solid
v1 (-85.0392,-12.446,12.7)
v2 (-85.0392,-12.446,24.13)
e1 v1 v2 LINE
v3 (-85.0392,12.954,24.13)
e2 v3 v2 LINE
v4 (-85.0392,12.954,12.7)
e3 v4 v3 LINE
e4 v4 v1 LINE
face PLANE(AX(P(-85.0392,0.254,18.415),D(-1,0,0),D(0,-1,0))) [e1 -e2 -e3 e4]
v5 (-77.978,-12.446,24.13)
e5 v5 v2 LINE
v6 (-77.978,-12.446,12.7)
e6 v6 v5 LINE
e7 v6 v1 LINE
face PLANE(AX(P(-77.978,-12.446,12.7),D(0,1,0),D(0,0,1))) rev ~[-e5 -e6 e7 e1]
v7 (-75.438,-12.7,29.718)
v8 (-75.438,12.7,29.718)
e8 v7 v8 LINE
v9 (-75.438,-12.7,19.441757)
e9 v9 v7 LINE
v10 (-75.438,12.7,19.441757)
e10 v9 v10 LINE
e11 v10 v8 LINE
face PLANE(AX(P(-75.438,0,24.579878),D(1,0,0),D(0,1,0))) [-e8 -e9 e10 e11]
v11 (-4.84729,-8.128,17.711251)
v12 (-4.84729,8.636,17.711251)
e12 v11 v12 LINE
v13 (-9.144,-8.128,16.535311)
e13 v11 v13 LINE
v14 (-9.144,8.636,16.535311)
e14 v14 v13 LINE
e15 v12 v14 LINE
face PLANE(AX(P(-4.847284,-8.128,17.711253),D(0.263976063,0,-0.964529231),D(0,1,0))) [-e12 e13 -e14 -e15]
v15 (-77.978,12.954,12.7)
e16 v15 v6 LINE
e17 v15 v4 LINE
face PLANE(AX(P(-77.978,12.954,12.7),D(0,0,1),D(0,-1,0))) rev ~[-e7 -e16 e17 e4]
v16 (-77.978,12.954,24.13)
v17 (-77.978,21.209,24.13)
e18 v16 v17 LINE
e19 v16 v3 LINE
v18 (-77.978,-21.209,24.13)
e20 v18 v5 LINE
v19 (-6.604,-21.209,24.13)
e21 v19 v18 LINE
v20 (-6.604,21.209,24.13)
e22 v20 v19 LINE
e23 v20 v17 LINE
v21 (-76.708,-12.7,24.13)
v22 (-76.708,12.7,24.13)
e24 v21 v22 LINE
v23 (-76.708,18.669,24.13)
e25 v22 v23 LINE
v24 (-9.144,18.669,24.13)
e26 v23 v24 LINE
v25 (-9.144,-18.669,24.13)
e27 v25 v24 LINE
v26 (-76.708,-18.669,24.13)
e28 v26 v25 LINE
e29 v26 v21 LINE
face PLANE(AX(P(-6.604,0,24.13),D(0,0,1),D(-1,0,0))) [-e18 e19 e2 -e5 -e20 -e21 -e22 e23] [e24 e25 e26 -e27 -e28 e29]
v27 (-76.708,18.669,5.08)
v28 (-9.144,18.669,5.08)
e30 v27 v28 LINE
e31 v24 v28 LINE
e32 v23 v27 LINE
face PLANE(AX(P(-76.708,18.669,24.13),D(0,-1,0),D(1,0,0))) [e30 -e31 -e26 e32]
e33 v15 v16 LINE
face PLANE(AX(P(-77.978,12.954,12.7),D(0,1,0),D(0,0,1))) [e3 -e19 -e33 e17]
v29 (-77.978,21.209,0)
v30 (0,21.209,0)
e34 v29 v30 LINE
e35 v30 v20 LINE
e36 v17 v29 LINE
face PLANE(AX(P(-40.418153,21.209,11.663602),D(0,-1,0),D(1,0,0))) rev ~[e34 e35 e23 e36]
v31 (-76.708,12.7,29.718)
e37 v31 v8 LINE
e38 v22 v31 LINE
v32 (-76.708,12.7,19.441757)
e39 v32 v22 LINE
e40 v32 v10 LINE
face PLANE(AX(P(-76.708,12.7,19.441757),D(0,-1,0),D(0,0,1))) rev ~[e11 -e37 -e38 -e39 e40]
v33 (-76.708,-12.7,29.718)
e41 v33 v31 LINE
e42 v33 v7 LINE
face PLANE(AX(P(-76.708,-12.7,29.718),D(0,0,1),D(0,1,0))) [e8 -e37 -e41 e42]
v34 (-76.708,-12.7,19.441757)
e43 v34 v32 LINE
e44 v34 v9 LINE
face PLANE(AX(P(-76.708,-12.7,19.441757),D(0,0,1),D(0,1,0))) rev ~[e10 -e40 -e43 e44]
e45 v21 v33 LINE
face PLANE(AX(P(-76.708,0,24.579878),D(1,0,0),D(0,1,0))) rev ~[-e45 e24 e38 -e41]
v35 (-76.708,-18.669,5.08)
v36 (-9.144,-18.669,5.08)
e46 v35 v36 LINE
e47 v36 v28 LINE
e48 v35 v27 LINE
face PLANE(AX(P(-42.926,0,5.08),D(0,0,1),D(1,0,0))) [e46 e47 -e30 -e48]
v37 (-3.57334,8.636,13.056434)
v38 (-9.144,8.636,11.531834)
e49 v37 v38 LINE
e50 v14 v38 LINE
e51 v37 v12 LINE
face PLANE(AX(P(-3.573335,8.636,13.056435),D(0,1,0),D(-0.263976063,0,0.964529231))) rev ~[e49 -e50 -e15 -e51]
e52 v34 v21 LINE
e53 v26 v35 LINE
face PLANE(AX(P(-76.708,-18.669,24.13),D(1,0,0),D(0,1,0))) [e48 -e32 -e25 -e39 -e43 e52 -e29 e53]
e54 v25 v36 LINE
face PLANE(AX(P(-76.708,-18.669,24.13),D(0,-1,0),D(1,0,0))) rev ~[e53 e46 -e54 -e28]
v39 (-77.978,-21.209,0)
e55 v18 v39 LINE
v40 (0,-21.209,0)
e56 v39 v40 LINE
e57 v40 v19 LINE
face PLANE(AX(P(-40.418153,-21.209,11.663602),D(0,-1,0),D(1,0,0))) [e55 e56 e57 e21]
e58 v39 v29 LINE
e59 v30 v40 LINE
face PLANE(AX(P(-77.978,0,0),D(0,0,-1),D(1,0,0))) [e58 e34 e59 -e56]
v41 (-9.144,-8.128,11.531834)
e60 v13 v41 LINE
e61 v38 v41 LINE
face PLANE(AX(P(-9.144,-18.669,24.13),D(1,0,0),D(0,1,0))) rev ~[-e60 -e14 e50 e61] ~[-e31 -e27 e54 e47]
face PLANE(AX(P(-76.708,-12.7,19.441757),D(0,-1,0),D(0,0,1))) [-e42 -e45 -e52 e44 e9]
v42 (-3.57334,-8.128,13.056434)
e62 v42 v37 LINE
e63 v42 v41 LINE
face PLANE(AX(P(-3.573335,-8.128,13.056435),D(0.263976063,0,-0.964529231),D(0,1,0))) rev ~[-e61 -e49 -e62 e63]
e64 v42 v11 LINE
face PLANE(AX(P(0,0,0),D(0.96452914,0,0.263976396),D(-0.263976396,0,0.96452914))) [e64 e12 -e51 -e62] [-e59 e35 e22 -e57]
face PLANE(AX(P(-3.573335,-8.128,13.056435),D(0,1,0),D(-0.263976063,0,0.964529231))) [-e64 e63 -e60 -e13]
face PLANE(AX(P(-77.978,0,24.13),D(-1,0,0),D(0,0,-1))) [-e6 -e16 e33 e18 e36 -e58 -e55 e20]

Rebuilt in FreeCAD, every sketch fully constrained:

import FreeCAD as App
import Part
import Sketcher

V = App.Vector
Q = App.Units.Quantity

doc = App.newDocument("Part")
body = doc.addObject("PartDesign::Body", "Body")

sketch1 = doc.addObject("Sketcher::SketchObject", "Sketch")
body.addObject(sketch1)
sketch1.AttachmentSupport = (doc.XZ_Plane, [""])
sketch1.MapMode = "FlatFace"
sketch1.addGeometry(Part.LineSegment(V(-77.978, 0, 0), V(0, 0, 0)), False)
sketch1.addGeometry(Part.LineSegment(V(0, 0, 0), V(-6.604, 24.13, 0)), False)
sketch1.addGeometry(Part.LineSegment(V(-6.604, 24.13, 0), V(-77.978, 24.13, 0)), False)
sketch1.addGeometry(Part.LineSegment(V(-77.978, 24.13, 0), V(-77.978, 0, 0)), False)
sketch1.addConstraint(Sketcher.Constraint("Coincident", 0, 2, 1, 1))
sketch1.addConstraint(Sketcher.Constraint("Coincident", 1, 2, 2, 1))
sketch1.addConstraint(Sketcher.Constraint("Coincident", 2, 2, 3, 1))
sketch1.addConstraint(Sketcher.Constraint("Coincident", 3, 2, 0, 1))
sketch1.addConstraint(Sketcher.Constraint("Horizontal", 0))
sketch1.addConstraint(Sketcher.Constraint("Horizontal", 2))
sketch1.addConstraint(Sketcher.Constraint("Vertical", 3))
sketch1.addConstraint(Sketcher.Constraint("Coincident", 0, 2, -1, 1))
sketch1.addConstraint(Sketcher.Constraint("DistanceX", 0, 1, 0, 2, Q("3.07 in")))
sketch1.addConstraint(Sketcher.Constraint("DistanceX", 2, 2, 2, 1, Q("2.81 in")))
sketch1.addConstraint(Sketcher.Constraint("DistanceY", 3, 2, 3, 1, Q("0.95 in")))
pad1 = doc.addObject("PartDesign::Pad", "Pad")
body.addObject(pad1)
pad1.Profile = sketch1
pad1.Length = Q("1.67 in")
pad1.Midplane = True

sketch2 = doc.addObject("Sketcher::SketchObject", "Sketch001")
body.addObject(sketch2)
sketch2.AttachmentSupport = (doc.YZ_Plane, [""])
sketch2.MapMode = "FlatFace"
sketch2.AttachmentOffset = App.Placement(V(0, 0, -3.07 * 25.4), App.Rotation())
sketch2.addGeometry(Part.LineSegment(V(12.954, 24.13, 0), V(12.954, 12.7, 0)), False)
sketch2.addGeometry(Part.LineSegment(V(12.954, 12.7, 0), V(-12.446, 12.7, 0)), False)
sketch2.addGeometry(Part.LineSegment(V(-12.446, 12.7, 0), V(-12.446, 24.13, 0)), False)
sketch2.addGeometry(Part.LineSegment(V(-12.446, 24.13, 0), V(12.954, 24.13, 0)), False)
sketch2.addConstraint(Sketcher.Constraint("Coincident", 0, 2, 1, 1))
sketch2.addConstraint(Sketcher.Constraint("Coincident", 1, 2, 2, 1))
sketch2.addConstraint(Sketcher.Constraint("Coincident", 2, 2, 3, 1))
sketch2.addConstraint(Sketcher.Constraint("Coincident", 3, 2, 0, 1))
sketch2.addConstraint(Sketcher.Constraint("Vertical", 0))
sketch2.addConstraint(Sketcher.Constraint("Horizontal", 1))
sketch2.addConstraint(Sketcher.Constraint("Vertical", 2))
sketch2.addConstraint(Sketcher.Constraint("Horizontal", 3))
sketch2.addConstraint(Sketcher.Constraint("DistanceX", 1, 2, 1, 1, Q("1 in")))
sketch2.addConstraint(Sketcher.Constraint("DistanceY", 0, 2, 0, 1, Q("0.45 in")))
sketch2.addConstraint(Sketcher.Constraint("DistanceY", -1, 1, 0, 2, Q("0.5 in")))
sketch2.addConstraint(Sketcher.Constraint("DistanceX", -1, 1, 0, 2, Q("0.51 in")))
pad2 = doc.addObject("PartDesign::Pad", "Pad001")
body.addObject(pad2)
pad2.Profile = sketch2
pad2.Length = Q("0.278 in")
pad2.Reversed = True

sketch3 = doc.addObject("Sketcher::SketchObject", "Sketch002")
body.addObject(sketch3)
sketch3.Placement = App.Placement(V(0, 0, 0), App.Rotation(V(0, 1, 0), V(-0.263976063, 0, 0.964529231), V(0.964529231, 0, 0.263976063), "ZXY"))
sketch3.addGeometry(Part.LineSegment(V(-8.128, 18.362588, 0), V(-8.128, 13.536588, 0)), False)
sketch3.addGeometry(Part.LineSegment(V(-8.128, 13.536588, 0), V(8.636, 13.536588, 0)), False)
sketch3.addGeometry(Part.LineSegment(V(8.636, 13.536588, 0), V(8.636, 18.362588, 0)), False)
sketch3.addGeometry(Part.LineSegment(V(8.636, 18.362588, 0), V(-8.128, 18.362588, 0)), False)
sketch3.addConstraint(Sketcher.Constraint("Coincident", 0, 2, 1, 1))
sketch3.addConstraint(Sketcher.Constraint("Coincident", 1, 2, 2, 1))
sketch3.addConstraint(Sketcher.Constraint("Coincident", 2, 2, 3, 1))
sketch3.addConstraint(Sketcher.Constraint("Coincident", 3, 2, 0, 1))
sketch3.addConstraint(Sketcher.Constraint("Vertical", 0))
sketch3.addConstraint(Sketcher.Constraint("Horizontal", 1))
sketch3.addConstraint(Sketcher.Constraint("Vertical", 2))
sketch3.addConstraint(Sketcher.Constraint("Horizontal", 3))
sketch3.addConstraint(Sketcher.Constraint("DistanceX", 1, 1, 1, 2, Q("0.66 in")))
sketch3.addConstraint(Sketcher.Constraint("DistanceY", 0, 2, 0, 1, Q("0.19 in")))
sketch3.addConstraint(Sketcher.Constraint("DistanceX", 0, 2, -1, 1, Q("0.32 in")))
sketch3.addConstraint(Sketcher.Constraint("DistanceY", -1, 1, 0, 2, Q("13.536588 mm")))
pocket1 = doc.addObject("PartDesign::Pocket", "Pocket")
body.addObject(pocket1)
pocket1.Profile = sketch3
pocket1.Length = Q("0.29 in")

sketch4 = doc.addObject("Sketcher::SketchObject", "Sketch003")
body.addObject(sketch4)
sketch4.AttachmentSupport = (doc.XY_Plane, [""])
sketch4.MapMode = "FlatFace"
sketch4.AttachmentOffset = App.Placement(V(0, 0, 0.95 * 25.4), App.Rotation())
sketch4.addGeometry(Part.LineSegment(V(-76.708, 18.669, 0), V(-76.708, -18.669, 0)), False)
sketch4.addGeometry(Part.LineSegment(V(-76.708, -18.669, 0), V(-9.144, -18.669, 0)), False)
sketch4.addGeometry(Part.LineSegment(V(-9.144, -18.669, 0), V(-9.144, 18.669, 0)), False)
sketch4.addGeometry(Part.LineSegment(V(-9.144, 18.669, 0), V(-76.708, 18.669, 0)), False)
sketch4.addConstraint(Sketcher.Constraint("Coincident", 0, 2, 1, 1))
sketch4.addConstraint(Sketcher.Constraint("Coincident", 1, 2, 2, 1))
sketch4.addConstraint(Sketcher.Constraint("Coincident", 2, 2, 3, 1))
sketch4.addConstraint(Sketcher.Constraint("Coincident", 3, 2, 0, 1))
sketch4.addConstraint(Sketcher.Constraint("Vertical", 0))
sketch4.addConstraint(Sketcher.Constraint("Horizontal", 1))
sketch4.addConstraint(Sketcher.Constraint("Vertical", 2))
sketch4.addConstraint(Sketcher.Constraint("Horizontal", 3))
sketch4.addConstraint(Sketcher.Constraint("DistanceX", 1, 1, 1, 2, Q("2.66 in")))
sketch4.addConstraint(Sketcher.Constraint("DistanceY", 0, 2, 0, 1, Q("1.47 in")))
sketch4.addConstraint(Sketcher.Constraint("DistanceX", 0, 2, -1, 1, Q("3.02 in")))
sketch4.addConstraint(Sketcher.Constraint("DistanceY", 0, 2, -1, 1, Q("0.735 in")))
pocket2 = doc.addObject("PartDesign::Pocket", "Pocket001")
body.addObject(pocket2)
pocket2.Profile = sketch4
pocket2.Length = Q("0.75 in")

sketch5 = doc.addObject("Sketcher::SketchObject", "Sketch004")
body.addObject(sketch5)
sketch5.AttachmentSupport = (doc.YZ_Plane, [""])
sketch5.MapMode = "FlatFace"
sketch5.AttachmentOffset = App.Placement(V(0, 0, -3.02 * 25.4), App.Rotation())
sketch5.addGeometry(Part.LineSegment(V(-12.7, 29.718, 0), V(-12.7, 19.441757, 0)), False)
sketch5.addGeometry(Part.LineSegment(V(-12.7, 19.441757, 0), V(12.7, 19.441757, 0)), False)
sketch5.addGeometry(Part.LineSegment(V(12.7, 19.441757, 0), V(12.7, 29.718, 0)), False)
sketch5.addGeometry(Part.LineSegment(V(12.7, 29.718, 0), V(-12.7, 29.718, 0)), False)
sketch5.addConstraint(Sketcher.Constraint("Coincident", 0, 2, 1, 1))
sketch5.addConstraint(Sketcher.Constraint("Coincident", 1, 2, 2, 1))
sketch5.addConstraint(Sketcher.Constraint("Coincident", 2, 2, 3, 1))
sketch5.addConstraint(Sketcher.Constraint("Coincident", 3, 2, 0, 1))
sketch5.addConstraint(Sketcher.Constraint("Vertical", 0))
sketch5.addConstraint(Sketcher.Constraint("Horizontal", 1))
sketch5.addConstraint(Sketcher.Constraint("Vertical", 2))
sketch5.addConstraint(Sketcher.Constraint("Horizontal", 3))
sketch5.addConstraint(Sketcher.Constraint("DistanceX", 1, 1, 1, 2, Q("1 in")))
sketch5.addConstraint(Sketcher.Constraint("DistanceX", 0, 2, -1, 1, Q("0.5 in")))
sketch5.addConstraint(Sketcher.Constraint("DistanceY", -1, 1, 2, 2, Q("1.17 in")))
sketch5.addConstraint(Sketcher.Constraint("DistanceY", 0, 2, 0, 1, Q("10.276243 mm")))
pad3 = doc.addObject("PartDesign::Pad", "Pad002")
body.addObject(pad3)
pad3.Profile = sketch5
pad3.Length = Q("0.05 in")

doc.recompute()
